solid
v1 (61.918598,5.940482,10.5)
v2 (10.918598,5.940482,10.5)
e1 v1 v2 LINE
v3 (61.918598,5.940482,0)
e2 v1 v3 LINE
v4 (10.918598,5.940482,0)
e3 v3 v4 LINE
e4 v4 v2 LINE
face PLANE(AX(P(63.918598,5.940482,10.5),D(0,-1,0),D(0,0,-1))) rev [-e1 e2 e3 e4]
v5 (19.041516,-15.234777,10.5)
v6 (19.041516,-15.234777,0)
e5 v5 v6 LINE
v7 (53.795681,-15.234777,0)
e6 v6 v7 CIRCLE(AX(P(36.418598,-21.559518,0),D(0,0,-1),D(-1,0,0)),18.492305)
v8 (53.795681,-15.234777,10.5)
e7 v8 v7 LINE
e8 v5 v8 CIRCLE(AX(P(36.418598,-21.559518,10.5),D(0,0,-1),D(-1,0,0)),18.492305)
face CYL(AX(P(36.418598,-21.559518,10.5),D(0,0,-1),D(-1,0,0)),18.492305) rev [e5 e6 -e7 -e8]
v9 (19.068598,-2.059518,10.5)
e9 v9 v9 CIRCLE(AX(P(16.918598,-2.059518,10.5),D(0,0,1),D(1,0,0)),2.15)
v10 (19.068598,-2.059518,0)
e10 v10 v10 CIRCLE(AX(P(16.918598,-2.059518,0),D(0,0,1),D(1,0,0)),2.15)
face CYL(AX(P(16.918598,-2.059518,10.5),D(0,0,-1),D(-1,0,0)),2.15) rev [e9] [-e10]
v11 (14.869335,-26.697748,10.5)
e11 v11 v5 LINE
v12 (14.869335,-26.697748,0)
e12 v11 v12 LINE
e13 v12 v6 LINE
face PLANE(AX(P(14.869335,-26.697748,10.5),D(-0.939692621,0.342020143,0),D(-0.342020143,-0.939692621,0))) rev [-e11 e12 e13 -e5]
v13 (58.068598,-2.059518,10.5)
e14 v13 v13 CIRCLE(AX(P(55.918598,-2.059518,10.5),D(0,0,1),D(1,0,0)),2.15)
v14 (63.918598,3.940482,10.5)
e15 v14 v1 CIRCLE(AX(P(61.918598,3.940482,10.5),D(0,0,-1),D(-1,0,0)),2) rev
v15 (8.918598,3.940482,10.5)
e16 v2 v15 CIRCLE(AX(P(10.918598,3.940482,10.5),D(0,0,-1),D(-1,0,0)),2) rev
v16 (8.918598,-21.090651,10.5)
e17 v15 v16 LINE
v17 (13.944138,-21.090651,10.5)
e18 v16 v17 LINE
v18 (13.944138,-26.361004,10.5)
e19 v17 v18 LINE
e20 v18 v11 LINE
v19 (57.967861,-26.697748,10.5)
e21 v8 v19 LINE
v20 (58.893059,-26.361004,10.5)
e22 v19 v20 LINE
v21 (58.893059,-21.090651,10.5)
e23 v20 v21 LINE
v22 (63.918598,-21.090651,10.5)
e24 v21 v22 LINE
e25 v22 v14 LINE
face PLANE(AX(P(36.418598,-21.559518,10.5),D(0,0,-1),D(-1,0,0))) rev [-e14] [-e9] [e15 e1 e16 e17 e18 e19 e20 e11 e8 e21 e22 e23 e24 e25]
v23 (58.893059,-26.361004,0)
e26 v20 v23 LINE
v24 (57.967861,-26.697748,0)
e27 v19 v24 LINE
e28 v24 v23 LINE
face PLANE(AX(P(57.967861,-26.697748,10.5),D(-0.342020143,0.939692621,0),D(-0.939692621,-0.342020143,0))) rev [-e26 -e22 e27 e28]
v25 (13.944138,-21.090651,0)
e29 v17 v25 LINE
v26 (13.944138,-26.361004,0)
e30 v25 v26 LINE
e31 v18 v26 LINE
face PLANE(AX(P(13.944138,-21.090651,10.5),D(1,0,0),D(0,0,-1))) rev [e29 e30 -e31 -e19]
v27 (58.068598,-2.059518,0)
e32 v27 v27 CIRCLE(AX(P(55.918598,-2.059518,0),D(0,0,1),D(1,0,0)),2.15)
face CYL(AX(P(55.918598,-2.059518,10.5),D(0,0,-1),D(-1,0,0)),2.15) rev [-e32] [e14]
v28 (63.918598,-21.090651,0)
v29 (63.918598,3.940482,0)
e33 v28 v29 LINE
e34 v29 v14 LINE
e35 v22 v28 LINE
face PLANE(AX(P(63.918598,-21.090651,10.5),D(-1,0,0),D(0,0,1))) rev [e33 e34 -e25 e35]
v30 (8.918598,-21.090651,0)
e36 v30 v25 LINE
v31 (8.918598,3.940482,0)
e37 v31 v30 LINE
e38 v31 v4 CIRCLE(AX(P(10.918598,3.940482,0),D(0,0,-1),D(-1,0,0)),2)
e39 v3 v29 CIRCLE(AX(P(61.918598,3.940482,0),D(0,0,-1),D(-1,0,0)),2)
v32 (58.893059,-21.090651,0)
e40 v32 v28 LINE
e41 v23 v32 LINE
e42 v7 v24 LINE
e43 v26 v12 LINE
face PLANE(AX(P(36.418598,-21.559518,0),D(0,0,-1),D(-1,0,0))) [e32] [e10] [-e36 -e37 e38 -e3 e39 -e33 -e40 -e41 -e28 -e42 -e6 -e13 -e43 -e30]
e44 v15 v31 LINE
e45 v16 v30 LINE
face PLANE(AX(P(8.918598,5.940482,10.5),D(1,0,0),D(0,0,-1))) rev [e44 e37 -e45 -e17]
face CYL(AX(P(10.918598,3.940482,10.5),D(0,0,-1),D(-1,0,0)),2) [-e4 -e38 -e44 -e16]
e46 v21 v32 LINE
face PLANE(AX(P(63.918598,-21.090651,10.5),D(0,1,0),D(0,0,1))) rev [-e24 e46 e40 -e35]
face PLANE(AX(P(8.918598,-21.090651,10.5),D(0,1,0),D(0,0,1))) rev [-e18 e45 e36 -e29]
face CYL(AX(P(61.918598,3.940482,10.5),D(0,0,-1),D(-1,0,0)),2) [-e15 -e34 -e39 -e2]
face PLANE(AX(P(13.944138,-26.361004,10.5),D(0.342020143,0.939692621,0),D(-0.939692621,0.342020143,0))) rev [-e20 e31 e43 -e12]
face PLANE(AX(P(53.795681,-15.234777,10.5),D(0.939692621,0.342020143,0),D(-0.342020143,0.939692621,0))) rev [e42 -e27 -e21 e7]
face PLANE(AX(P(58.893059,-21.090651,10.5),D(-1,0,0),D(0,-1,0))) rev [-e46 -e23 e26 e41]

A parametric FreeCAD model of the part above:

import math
import FreeCAD as App
import Part
import Sketcher

V = App.Vector
Q = App.Units.Quantity


def edges_at(feature, points):
    """Names of the edges that pass closest to the given points."""
    edges = feature.Shape.Edges
    near = lambda p: min(range(len(edges)), key=lambda i: edges[i].distToShape(Part.Vertex(*p))[0])
    return sorted({f"Edge{near(p) + 1}" for p in points})

doc = App.newDocument("Part")
body = doc.addObject("PartDesign::Body", "Body")

# Sketch on XY plane
sketch1 = body.newObject("Sketcher::SketchObject", "Sketch")
sketch1.AttachmentSupport = (doc.getObject("XY_Plane"), [""])
sketch1.MapMode = "FlatFace"
sketch1.addGeometry(Part.LineSegment(V(13.944138, -26.361004, 0), V(14.869335, -26.697748, 0)), False)
sketch1.addGeometry(Part.LineSegment(V(14.869335, -26.697748, 0), V(19.041516, -15.234777, 0)), False)
sketch1.addGeometry(Part.ArcOfCircle(Part.Circle(V(36.418598, -21.559518, 0), V(0, 0, 1), 18.492305), math.radians(20), math.radians(160)), False)
sketch1.addGeometry(Part.LineSegment(V(53.795681, -15.234777, 0), V(57.967861, -26.697748, 0)), False)
sketch1.addGeometry(Part.LineSegment(V(57.967861, -26.697748, 0), V(58.893059, -26.361004, 0)), False)
sketch1.addGeometry(Part.LineSegment(V(58.893059, -26.361004, 0), V(58.893059, -21.090651, 0)), False)
sketch1.addGeometry(Part.LineSegment(V(58.893059, -21.090651, 0), V(63.918598, -21.090651, 0)), False)
sketch1.addGeometry(Part.LineSegment(V(63.918598, -21.090651, 0), V(63.918598, 5.940482, 0)), False)
sketch1.addGeometry(Part.LineSegment(V(63.918598, 5.940482, 0), V(8.918598, 5.940482, 0)), False)
sketch1.addGeometry(Part.LineSegment(V(8.918598, 5.940482, 0), V(8.918598, -21.090651, 0)), False)
sketch1.addGeometry(Part.LineSegment(V(8.918598, -21.090651, 0), V(13.944138, -21.090651, 0)), False)
sketch1.addGeometry(Part.LineSegment(V(13.944138, -21.090651, 0), V(13.944138, -26.361004, 0)), False)
sketch1.addGeometry(Part.Circle(V(16.918598, -2.059518, 0), V(0, 0, 1), 2.15), False)
sketch1.addGeometry(Part.Circle(V(55.918598, -2.059518, 0), V(0, 0, 1), 2.15), False)
sketch1.addConstraint(Sketcher.Constraint("Coincident", 0, 2, 1, 1))
sketch1.addConstraint(Sketcher.Constraint("Tangent", 1, 2, 2, 2))
sketch1.addConstraint(Sketcher.Constraint("Tangent", 2, 1, 3, 1))
sketch1.addConstraint(Sketcher.Constraint("Coincident", 3, 2, 4, 1))
sketch1.addConstraint(Sketcher.Constraint("Coincident", 4, 2, 5, 1))
sketch1.addConstraint(Sketcher.Constraint("Coincident", 5, 2, 6, 1))
sketch1.addConstraint(Sketcher.Constraint("Coincident", 6, 2, 7, 1))
sketch1.addConstraint(Sketcher.Constraint("Coincident", 7, 2, 8, 1))
sketch1.addConstraint(Sketcher.Constraint("Coincident", 8, 2, 9, 1))
sketch1.addConstraint(Sketcher.Constraint("Coincident", 9, 2, 10, 1))
sketch1.addConstraint(Sketcher.Constraint("Coincident", 10, 2, 11, 1))
sketch1.addConstraint(Sketcher.Constraint("Coincident", 11, 2, 0, 1))
sketch1.addConstraint(Sketcher.Constraint("Vertical", 5))
sketch1.addConstraint(Sketcher.Constraint("Horizontal", 6))
sketch1.addConstraint(Sketcher.Constraint("Vertical", 7))
sketch1.addConstraint(Sketcher.Constraint("Horizontal", 8))
sketch1.addConstraint(Sketcher.Constraint("Vertical", 9))
sketch1.addConstraint(Sketcher.Constraint("Horizontal", 10))
sketch1.addConstraint(Sketcher.Constraint("Vertical", 11))
sketch1.addConstraint(Sketcher.Constraint("Equal", 12, 13))
sketch1.addConstraint(Sketcher.Constraint("Perpendicular", 0, 1))
sketch1.addConstraint(Sketcher.Constraint("Perpendicular", 3, 4))
sketch1.addConstraint(Sketcher.Constraint("Horizontal", 12, 3, 13, 3))
sketch1.addConstraint(Sketcher.Constraint("Horizontal", 1, 2, 2, 1))
sketch1.addConstraint(Sketcher.Constraint("Horizontal", 0, 2, 3, 2))
sketch1.addConstraint(Sketcher.Constraint("Horizontal", 6, 2, 9, 2))
sketch1.addConstraint(Sketcher.Constraint("Horizontal", 4, 2, 11, 2))
sketch1.addConstraint(Sketcher.Constraint("Equal", 6, 10))
sketch1.addConstraint(Sketcher.Constraint("Diameter", 12, 4.3))
sketch1.addConstraint(Sketcher.Constraint("DistanceX", 8, 2, 8, 1, 55.0))
sketch1.addConstraint(Sketcher.Constraint("Angle", 0, Q("-20 deg")))
sketch1.addConstraint(Sketcher.Constraint("DistanceX", 12, 3, 13, 3, 39.0))
sketch1.addConstraint(Sketcher.Constraint("DistanceX", 13, 3, 6, 2, 8.0))
sketch1.addConstraint(Sketcher.Constraint("DistanceY", 13, 3, 7, 2, 8.0))
sketch1.addConstraint(Sketcher.Constraint("DistanceY", 2, 3, 12, 3, 19.5))
sketch1.addConstraint(Sketcher.Constraint("Radius", 2, 18.492305))
sketch1.addConstraint(Sketcher.Constraint("DistanceX", 6, 1, 6, 2, 5.02554))
sketch1.addConstraint(Sketcher.Constraint("DistanceX", -1, 1, 2, 3, 36.418598))
sketch1.addConstraint(Sketcher.Constraint("Distance", 1, 12.198639))
sketch1.addConstraint(Sketcher.Constraint("DistanceY", 5, 1, 5, 2, 5.270353))
sketch1.addConstraint(Sketcher.Constraint("DistanceY", 0, 2, -1, 1, 26.697748))
pad1 = body.newObject("PartDesign::Pad", "Pad")
pad1.Profile = sketch1
pad1.Length = 10.5
doc.recompute()

fillet = body.newObject("PartDesign::Fillet", "Fillet")
fillet.Base = (pad1, edges_at(pad1, [(8.919, 5.94, 5.25), (63.919, 5.94, 5.25)]))
fillet.Radius = 2

doc.recompute()
